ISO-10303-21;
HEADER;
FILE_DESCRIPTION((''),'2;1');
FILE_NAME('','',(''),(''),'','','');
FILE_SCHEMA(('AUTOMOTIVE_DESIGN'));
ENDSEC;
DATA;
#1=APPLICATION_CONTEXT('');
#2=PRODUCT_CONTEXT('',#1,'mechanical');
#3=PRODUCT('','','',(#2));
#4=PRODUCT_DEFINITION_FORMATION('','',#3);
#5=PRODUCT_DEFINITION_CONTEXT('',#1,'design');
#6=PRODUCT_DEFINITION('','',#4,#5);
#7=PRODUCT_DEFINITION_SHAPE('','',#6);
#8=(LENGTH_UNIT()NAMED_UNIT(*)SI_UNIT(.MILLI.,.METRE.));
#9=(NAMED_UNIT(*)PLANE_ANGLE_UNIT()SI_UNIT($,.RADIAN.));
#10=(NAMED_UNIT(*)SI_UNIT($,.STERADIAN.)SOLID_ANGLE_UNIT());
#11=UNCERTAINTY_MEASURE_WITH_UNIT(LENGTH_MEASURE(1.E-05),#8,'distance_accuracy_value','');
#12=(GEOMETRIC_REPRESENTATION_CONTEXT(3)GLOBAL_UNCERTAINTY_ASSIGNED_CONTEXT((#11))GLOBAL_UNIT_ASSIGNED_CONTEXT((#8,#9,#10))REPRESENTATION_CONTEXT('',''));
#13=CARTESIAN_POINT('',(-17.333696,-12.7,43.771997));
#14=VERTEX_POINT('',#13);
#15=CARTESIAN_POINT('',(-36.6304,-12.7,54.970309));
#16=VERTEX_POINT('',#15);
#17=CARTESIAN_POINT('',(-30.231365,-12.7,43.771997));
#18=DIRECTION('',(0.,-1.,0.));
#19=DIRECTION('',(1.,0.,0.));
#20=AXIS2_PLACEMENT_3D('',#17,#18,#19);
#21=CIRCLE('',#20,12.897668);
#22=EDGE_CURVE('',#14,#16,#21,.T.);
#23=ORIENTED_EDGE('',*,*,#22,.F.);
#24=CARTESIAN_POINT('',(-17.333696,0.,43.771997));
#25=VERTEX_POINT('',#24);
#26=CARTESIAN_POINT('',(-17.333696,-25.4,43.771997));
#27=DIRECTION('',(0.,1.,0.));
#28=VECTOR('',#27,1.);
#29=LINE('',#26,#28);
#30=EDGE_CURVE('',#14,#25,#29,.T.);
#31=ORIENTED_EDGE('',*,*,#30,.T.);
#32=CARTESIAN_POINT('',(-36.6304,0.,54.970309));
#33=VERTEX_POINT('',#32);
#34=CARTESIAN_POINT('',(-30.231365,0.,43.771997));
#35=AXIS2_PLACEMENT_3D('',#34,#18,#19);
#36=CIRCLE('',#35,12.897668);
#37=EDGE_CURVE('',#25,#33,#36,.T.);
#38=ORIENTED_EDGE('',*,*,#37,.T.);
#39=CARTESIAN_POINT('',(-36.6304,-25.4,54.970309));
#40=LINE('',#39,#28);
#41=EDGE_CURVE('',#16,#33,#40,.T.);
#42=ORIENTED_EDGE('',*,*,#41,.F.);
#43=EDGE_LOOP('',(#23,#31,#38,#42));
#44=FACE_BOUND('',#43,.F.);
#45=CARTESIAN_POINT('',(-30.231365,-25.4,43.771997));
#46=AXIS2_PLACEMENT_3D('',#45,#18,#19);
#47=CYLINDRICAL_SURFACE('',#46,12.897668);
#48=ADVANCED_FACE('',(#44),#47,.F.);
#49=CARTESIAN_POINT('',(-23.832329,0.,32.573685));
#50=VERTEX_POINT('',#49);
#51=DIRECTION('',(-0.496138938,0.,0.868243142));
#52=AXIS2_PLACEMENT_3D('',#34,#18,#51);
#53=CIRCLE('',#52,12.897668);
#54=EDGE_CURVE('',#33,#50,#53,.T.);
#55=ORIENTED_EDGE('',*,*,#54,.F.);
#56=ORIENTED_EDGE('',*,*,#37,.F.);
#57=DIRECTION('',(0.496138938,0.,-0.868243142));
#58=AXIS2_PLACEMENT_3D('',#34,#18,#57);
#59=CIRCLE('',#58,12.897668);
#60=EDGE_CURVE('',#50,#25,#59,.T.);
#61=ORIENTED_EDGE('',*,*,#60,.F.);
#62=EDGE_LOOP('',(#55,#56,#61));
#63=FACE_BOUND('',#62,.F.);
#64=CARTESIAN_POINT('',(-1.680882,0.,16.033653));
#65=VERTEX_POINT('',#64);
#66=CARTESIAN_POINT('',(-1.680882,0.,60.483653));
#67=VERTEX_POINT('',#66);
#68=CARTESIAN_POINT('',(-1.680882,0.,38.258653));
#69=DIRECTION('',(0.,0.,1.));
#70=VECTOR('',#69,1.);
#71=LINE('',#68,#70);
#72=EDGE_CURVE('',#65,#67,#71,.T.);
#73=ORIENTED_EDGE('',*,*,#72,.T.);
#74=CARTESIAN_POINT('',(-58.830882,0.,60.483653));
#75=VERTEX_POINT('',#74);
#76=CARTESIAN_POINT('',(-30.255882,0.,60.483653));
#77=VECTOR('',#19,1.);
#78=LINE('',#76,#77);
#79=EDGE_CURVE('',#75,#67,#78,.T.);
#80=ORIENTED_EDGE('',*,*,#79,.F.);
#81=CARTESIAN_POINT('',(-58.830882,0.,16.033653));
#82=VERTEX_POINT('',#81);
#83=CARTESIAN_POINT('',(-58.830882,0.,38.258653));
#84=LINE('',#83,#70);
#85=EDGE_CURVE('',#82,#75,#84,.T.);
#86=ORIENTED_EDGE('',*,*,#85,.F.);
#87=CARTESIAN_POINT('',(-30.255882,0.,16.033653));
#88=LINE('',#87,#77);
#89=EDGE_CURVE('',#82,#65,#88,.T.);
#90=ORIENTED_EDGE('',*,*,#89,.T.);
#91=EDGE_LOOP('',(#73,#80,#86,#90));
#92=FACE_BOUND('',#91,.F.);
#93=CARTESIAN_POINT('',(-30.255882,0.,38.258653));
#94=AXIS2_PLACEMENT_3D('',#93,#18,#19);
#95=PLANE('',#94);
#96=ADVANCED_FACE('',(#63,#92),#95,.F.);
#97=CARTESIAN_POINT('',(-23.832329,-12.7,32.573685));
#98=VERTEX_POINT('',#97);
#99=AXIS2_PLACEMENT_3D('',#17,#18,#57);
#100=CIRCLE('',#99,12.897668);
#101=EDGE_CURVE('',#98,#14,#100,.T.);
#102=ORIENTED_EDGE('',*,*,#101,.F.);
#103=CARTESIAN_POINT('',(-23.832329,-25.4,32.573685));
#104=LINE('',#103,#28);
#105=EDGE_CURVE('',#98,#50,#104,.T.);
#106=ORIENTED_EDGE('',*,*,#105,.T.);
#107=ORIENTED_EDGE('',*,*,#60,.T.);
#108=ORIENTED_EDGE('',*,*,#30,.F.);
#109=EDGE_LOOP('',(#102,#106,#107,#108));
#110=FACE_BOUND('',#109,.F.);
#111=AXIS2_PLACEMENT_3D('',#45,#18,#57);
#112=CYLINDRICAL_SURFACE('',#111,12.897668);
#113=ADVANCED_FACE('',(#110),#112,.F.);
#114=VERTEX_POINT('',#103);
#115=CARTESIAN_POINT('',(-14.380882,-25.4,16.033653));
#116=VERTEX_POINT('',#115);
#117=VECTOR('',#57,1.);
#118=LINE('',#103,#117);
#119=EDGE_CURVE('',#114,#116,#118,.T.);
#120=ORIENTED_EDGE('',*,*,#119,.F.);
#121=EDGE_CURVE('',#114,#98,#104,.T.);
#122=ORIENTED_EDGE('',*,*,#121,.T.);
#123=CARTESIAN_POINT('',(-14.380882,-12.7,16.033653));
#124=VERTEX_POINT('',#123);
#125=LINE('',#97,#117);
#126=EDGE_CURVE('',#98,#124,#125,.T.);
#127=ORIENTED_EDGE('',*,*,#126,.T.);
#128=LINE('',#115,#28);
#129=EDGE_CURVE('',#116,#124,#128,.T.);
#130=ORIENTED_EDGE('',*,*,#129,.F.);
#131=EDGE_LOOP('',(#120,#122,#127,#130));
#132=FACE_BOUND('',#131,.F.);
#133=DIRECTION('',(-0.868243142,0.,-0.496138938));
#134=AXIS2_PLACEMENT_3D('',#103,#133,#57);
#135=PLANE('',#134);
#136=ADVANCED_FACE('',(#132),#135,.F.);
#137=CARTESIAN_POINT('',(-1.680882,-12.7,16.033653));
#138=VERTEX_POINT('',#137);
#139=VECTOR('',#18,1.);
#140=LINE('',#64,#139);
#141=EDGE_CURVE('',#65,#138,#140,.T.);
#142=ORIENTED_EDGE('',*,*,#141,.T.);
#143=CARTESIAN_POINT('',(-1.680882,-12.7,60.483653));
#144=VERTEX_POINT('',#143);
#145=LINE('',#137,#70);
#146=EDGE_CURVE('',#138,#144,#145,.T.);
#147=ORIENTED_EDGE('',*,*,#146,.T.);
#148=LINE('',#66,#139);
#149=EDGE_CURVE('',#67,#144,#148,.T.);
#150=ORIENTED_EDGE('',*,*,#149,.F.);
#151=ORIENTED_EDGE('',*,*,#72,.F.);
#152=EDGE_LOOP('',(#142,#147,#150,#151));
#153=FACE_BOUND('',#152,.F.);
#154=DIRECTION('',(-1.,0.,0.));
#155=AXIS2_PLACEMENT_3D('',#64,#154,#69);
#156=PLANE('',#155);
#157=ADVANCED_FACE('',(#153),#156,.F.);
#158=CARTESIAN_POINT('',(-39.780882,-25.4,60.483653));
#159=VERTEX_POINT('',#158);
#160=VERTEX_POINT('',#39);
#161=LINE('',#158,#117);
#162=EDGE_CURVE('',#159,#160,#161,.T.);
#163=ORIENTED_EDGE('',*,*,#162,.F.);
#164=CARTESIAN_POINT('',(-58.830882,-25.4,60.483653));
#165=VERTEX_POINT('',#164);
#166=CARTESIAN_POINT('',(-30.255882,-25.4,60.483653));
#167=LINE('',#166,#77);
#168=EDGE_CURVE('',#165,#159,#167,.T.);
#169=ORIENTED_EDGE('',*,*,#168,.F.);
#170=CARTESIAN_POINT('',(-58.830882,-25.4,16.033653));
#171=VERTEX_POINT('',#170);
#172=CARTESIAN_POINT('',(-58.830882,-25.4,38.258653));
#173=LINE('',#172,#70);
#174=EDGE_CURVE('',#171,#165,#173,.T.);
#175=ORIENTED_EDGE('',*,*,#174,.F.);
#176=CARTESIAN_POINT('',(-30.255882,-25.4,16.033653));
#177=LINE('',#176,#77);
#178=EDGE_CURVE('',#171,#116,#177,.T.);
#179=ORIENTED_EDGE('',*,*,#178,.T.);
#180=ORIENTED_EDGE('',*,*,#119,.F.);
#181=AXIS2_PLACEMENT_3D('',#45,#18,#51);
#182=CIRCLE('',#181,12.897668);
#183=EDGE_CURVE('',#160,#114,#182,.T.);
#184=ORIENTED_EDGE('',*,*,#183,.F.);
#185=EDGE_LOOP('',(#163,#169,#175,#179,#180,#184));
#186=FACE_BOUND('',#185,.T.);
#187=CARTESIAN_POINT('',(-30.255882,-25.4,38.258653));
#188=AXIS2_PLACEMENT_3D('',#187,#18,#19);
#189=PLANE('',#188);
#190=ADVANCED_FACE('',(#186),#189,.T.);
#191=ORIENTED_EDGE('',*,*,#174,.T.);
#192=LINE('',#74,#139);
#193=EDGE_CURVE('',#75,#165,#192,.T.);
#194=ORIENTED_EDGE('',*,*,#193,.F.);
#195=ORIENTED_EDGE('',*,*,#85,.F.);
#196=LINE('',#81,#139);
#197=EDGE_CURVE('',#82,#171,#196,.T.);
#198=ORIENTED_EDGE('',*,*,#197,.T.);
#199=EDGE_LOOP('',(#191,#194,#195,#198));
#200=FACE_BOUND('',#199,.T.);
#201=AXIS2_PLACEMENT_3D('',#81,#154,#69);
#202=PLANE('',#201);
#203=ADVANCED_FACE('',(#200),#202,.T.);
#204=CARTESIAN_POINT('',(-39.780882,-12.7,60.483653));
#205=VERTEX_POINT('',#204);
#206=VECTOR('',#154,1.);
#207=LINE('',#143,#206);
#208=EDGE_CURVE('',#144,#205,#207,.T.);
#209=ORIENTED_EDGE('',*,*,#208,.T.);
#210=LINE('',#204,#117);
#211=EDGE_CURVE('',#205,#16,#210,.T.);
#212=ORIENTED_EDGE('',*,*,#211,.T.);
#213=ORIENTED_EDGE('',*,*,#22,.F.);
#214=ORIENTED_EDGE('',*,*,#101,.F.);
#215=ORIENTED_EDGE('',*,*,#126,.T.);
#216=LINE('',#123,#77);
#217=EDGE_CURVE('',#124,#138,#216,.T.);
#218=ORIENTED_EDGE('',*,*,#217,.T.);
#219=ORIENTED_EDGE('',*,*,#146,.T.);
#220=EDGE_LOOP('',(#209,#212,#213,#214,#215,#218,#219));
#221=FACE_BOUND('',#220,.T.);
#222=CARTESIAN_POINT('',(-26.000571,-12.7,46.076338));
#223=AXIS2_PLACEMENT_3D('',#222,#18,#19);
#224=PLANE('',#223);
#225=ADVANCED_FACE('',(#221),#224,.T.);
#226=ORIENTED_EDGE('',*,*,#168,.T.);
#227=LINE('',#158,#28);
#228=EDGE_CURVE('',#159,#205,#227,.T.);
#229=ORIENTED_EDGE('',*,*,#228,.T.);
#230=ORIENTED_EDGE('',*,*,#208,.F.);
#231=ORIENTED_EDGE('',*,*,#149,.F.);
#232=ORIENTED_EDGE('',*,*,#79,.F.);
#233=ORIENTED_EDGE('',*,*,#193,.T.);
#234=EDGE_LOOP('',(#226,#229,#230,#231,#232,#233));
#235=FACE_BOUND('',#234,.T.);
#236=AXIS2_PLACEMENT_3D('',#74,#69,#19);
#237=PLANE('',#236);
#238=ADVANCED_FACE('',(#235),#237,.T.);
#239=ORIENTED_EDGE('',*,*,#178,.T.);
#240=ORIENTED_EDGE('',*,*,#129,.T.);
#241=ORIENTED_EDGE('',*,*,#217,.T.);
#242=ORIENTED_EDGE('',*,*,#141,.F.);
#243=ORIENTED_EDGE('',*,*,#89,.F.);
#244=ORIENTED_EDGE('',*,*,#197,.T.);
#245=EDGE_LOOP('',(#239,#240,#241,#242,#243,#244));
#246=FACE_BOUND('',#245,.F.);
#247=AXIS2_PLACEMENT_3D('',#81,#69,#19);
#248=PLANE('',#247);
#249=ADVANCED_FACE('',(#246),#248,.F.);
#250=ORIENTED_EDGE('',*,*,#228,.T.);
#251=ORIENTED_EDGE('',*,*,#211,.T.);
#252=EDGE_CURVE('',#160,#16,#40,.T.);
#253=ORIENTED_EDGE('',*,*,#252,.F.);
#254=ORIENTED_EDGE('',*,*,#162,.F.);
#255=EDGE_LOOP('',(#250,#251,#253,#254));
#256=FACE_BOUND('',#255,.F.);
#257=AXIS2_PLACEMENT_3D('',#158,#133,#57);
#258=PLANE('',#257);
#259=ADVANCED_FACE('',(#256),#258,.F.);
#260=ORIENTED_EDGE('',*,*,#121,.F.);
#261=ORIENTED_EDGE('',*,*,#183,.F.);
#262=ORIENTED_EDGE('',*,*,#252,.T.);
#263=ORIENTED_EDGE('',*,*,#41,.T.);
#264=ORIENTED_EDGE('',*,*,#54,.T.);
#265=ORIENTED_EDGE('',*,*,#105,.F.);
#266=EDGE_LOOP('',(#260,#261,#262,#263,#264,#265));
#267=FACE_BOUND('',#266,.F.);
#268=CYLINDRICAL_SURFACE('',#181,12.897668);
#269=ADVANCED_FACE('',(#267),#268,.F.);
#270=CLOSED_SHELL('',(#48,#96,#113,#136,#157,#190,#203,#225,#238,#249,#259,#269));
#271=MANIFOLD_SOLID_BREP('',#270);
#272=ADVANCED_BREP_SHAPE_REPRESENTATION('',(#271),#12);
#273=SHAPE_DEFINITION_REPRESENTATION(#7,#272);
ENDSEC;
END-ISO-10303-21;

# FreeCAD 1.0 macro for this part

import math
import FreeCAD as App
import Part
import Sketcher
Q = App.Units.Quantity


def add_polygon(sketch, points):
    """Adds a closed chain of lines whose ends are joined by coincident constraints."""
    first, n = sketch.GeometryCount, len(points)
    for a, b in zip(points, points[1:] + points[:1]):
        sketch.addGeometry(Part.LineSegment(App.Vector(*a, 0), App.Vector(*b, 0)), False)
    for i in range(n):
        sketch.addConstraint(Sketcher.Constraint("Coincident", first + i, 2, first + (i + 1) % n, 1))

doc = App.newDocument("Part")
body = doc.addObject("PartDesign::Body", "Body")

sketch1 = body.newObject("Sketcher::SketchObject", "Sketch")
sketch1.AttachmentSupport = (doc.getObject("XZ_Plane"), [""])
sketch1.MapMode = "FlatFace"
add_polygon(sketch1, [(-59, 60), (-59, 16), (-2, 16), (-2, 60)])
sketch1.addConstraint(Sketcher.Constraint("Vertical", 0))
sketch1.addConstraint(Sketcher.Constraint("Horizontal", 1))
sketch1.addConstraint(Sketcher.Constraint("Vertical", 2))
sketch1.addConstraint(Sketcher.Constraint("Horizontal", 3))
sketch1.addConstraint(Sketcher.Constraint("DistanceX", 1, 1, 1, 2, Q("2.25 in")))
sketch1.addConstraint(Sketcher.Constraint("DistanceY", 0, 2, 0, 1, Q("1.75 in")))
sketch1.addConstraint(Sketcher.Constraint("DistanceX", 0, 2, -1, 1, 58.830882))
sketch1.addConstraint(Sketcher.Constraint("DistanceY", -1, 1, 0, 2, 16.033653))
pad1 = body.newObject("PartDesign::Pad", "Pad")
pad1.Profile = sketch1
pad1.Length = Q("1 in")

sketch2 = body.newObject("Sketcher::SketchObject", "Sketch001")
sketch2.AttachmentSupport = (doc.getObject("XZ_Plane"), [""])
sketch2.MapMode = "FlatFace"
sketch2.AttachmentOffset = App.Placement(App.Vector(0, 0, 1 * 25.4), App.Rotation())
sketch2.addGeometry(Part.ArcOfCircle(Part.Circle(App.Vector(-30, 44, 0), App.Vector(0, 0, 1), 13), math.radians(120), math.radians(300)), False)
sketch2.addGeometry(Part.LineSegment(App.Vector(-24, 33, 0), App.Vector(-14, 16, 0)), False)
sketch2.addGeometry(Part.LineSegment(App.Vector(-14, 16, 0), App.Vector(-2, 16, 0)), False)
sketch2.addGeometry(Part.LineSegment(App.Vector(-2, 16, 0), App.Vector(-2, 60, 0)), False)
sketch2.addGeometry(Part.LineSegment(App.Vector(-2, 60, 0), App.Vector(-40, 60, 0)), False)
sketch2.addGeometry(Part.LineSegment(App.Vector(-40, 60, 0), App.Vector(-37, 55, 0)), False)
sketch2.addConstraint(Sketcher.Constraint("Coincident", 0, 2, 1, 1))
sketch2.addConstraint(Sketcher.Constraint("Coincident", 1, 2, 2, 1))
sketch2.addConstraint(Sketcher.Constraint("Coincident", 2, 2, 3, 1))
sketch2.addConstraint(Sketcher.Constraint("Coincident", 3, 2, 4, 1))
sketch2.addConstraint(Sketcher.Constraint("Coincident", 4, 2, 5, 1))
sketch2.addConstraint(Sketcher.Constraint("Coincident", 5, 2, 0, 1))
sketch2.addConstraint(Sketcher.Constraint("Horizontal", 2))
sketch2.addConstraint(Sketcher.Constraint("Vertical", 3))
sketch2.addConstraint(Sketcher.Constraint("Horizontal", 4))
sketch2.addConstraint(Sketcher.Constraint("Parallel", 1, 5))
sketch2.addConstraint(Sketcher.Constraint("DistanceX", 2, 1, 2, 2, Q("0.5 in")))
sketch2.addConstraint(Sketcher.Constraint("DistanceX", 4, 2, 4, 1, Q("1.5 in")))
sketch2.addConstraint(Sketcher.Constraint("DistanceY", 3, 1, 3, 2, Q("1.75 in")))
sketch2.addConstraint(Sketcher.Constraint("Distance", 1, Q("0.75 in")))
sketch2.addConstraint(Sketcher.Constraint("Distance", 5, Q("0.25 in")))
sketch2.addConstraint(Sketcher.Constraint("DistanceX", 5, 2, -1, 1, 36.6304))
sketch2.addConstraint(Sketcher.Constraint("DistanceX", 0, 2, -1, 1, 23.832329))
sketch2.addConstraint(Sketcher.Constraint("DistanceY", -1, 1, 5, 2, 54.970309))
sketch2.addConstraint(Sketcher.Constraint("DistanceX", 0, 3, -1, 1, 30.231365))
pocket1 = body.newObject("PartDesign::Pocket", "Pocket")
pocket1.Profile = sketch2
pocket1.Length = Q("0.5 in")

sketch3 = body.newObject("Sketcher::SketchObject", "Sketch002")
sketch3.AttachmentSupport = (doc.getObject("XZ_Plane"), [""])
sketch3.MapMode = "FlatFace"
sketch3.AttachmentOffset = App.Placement(App.Vector(0, 0, 1 * 25.4), App.Rotation())
sketch3.addGeometry(Part.ArcOfCircle(Part.Circle(App.Vector(-30, 44, 0), App.Vector(0, 0, 1), 13), math.radians(0), math.radians(120)), False)
sketch3.addGeometry(Part.ArcOfCircle(Part.Circle(App.Vector(-30, 44, 0), App.Vector(0, 0, 1), 13), math.radians(120), math.radians(300)), False)
sketch3.addGeometry(Part.ArcOfCircle(Part.Circle(App.Vector(-30, 44, 0), App.Vector(0, 0, 1), 13), math.radians(-60), math.radians(0)), False)
sketch3.addConstraint(Sketcher.Constraint("Tangent", 0, 2, 1, 1))
sketch3.addConstraint(Sketcher.Constraint("Tangent", 1, 2, 2, 1))
sketch3.addConstraint(Sketcher.Constraint("Tangent", 2, 2, 0, 1))
sketch3.addConstraint(Sketcher.Constraint("Horizontal", 1, 3, 2, 2))
sketch3.addConstraint(Sketcher.Constraint("Radius", 0, 12.897668))
sketch3.addConstraint(Sketcher.Constraint("DistanceX", 0, 2, -1, 1, 36.6304))
sketch3.addConstraint(Sketcher.Constraint("DistanceY", -1, 1, 0, 2, 54.970309))
sketch3.addConstraint(Sketcher.Constraint("DistanceX", 1, 2, -1, 1, 23.832329))
sketch3.addConstraint(Sketcher.Constraint("DistanceX", 0, 3, -1, 1, 30.231365))
pocket2 = body.newObject("PartDesign::Pocket", "Pocket001")
pocket2.Profile = sketch3
pocket2.Length = Q("1 in")

doc.recompute()
